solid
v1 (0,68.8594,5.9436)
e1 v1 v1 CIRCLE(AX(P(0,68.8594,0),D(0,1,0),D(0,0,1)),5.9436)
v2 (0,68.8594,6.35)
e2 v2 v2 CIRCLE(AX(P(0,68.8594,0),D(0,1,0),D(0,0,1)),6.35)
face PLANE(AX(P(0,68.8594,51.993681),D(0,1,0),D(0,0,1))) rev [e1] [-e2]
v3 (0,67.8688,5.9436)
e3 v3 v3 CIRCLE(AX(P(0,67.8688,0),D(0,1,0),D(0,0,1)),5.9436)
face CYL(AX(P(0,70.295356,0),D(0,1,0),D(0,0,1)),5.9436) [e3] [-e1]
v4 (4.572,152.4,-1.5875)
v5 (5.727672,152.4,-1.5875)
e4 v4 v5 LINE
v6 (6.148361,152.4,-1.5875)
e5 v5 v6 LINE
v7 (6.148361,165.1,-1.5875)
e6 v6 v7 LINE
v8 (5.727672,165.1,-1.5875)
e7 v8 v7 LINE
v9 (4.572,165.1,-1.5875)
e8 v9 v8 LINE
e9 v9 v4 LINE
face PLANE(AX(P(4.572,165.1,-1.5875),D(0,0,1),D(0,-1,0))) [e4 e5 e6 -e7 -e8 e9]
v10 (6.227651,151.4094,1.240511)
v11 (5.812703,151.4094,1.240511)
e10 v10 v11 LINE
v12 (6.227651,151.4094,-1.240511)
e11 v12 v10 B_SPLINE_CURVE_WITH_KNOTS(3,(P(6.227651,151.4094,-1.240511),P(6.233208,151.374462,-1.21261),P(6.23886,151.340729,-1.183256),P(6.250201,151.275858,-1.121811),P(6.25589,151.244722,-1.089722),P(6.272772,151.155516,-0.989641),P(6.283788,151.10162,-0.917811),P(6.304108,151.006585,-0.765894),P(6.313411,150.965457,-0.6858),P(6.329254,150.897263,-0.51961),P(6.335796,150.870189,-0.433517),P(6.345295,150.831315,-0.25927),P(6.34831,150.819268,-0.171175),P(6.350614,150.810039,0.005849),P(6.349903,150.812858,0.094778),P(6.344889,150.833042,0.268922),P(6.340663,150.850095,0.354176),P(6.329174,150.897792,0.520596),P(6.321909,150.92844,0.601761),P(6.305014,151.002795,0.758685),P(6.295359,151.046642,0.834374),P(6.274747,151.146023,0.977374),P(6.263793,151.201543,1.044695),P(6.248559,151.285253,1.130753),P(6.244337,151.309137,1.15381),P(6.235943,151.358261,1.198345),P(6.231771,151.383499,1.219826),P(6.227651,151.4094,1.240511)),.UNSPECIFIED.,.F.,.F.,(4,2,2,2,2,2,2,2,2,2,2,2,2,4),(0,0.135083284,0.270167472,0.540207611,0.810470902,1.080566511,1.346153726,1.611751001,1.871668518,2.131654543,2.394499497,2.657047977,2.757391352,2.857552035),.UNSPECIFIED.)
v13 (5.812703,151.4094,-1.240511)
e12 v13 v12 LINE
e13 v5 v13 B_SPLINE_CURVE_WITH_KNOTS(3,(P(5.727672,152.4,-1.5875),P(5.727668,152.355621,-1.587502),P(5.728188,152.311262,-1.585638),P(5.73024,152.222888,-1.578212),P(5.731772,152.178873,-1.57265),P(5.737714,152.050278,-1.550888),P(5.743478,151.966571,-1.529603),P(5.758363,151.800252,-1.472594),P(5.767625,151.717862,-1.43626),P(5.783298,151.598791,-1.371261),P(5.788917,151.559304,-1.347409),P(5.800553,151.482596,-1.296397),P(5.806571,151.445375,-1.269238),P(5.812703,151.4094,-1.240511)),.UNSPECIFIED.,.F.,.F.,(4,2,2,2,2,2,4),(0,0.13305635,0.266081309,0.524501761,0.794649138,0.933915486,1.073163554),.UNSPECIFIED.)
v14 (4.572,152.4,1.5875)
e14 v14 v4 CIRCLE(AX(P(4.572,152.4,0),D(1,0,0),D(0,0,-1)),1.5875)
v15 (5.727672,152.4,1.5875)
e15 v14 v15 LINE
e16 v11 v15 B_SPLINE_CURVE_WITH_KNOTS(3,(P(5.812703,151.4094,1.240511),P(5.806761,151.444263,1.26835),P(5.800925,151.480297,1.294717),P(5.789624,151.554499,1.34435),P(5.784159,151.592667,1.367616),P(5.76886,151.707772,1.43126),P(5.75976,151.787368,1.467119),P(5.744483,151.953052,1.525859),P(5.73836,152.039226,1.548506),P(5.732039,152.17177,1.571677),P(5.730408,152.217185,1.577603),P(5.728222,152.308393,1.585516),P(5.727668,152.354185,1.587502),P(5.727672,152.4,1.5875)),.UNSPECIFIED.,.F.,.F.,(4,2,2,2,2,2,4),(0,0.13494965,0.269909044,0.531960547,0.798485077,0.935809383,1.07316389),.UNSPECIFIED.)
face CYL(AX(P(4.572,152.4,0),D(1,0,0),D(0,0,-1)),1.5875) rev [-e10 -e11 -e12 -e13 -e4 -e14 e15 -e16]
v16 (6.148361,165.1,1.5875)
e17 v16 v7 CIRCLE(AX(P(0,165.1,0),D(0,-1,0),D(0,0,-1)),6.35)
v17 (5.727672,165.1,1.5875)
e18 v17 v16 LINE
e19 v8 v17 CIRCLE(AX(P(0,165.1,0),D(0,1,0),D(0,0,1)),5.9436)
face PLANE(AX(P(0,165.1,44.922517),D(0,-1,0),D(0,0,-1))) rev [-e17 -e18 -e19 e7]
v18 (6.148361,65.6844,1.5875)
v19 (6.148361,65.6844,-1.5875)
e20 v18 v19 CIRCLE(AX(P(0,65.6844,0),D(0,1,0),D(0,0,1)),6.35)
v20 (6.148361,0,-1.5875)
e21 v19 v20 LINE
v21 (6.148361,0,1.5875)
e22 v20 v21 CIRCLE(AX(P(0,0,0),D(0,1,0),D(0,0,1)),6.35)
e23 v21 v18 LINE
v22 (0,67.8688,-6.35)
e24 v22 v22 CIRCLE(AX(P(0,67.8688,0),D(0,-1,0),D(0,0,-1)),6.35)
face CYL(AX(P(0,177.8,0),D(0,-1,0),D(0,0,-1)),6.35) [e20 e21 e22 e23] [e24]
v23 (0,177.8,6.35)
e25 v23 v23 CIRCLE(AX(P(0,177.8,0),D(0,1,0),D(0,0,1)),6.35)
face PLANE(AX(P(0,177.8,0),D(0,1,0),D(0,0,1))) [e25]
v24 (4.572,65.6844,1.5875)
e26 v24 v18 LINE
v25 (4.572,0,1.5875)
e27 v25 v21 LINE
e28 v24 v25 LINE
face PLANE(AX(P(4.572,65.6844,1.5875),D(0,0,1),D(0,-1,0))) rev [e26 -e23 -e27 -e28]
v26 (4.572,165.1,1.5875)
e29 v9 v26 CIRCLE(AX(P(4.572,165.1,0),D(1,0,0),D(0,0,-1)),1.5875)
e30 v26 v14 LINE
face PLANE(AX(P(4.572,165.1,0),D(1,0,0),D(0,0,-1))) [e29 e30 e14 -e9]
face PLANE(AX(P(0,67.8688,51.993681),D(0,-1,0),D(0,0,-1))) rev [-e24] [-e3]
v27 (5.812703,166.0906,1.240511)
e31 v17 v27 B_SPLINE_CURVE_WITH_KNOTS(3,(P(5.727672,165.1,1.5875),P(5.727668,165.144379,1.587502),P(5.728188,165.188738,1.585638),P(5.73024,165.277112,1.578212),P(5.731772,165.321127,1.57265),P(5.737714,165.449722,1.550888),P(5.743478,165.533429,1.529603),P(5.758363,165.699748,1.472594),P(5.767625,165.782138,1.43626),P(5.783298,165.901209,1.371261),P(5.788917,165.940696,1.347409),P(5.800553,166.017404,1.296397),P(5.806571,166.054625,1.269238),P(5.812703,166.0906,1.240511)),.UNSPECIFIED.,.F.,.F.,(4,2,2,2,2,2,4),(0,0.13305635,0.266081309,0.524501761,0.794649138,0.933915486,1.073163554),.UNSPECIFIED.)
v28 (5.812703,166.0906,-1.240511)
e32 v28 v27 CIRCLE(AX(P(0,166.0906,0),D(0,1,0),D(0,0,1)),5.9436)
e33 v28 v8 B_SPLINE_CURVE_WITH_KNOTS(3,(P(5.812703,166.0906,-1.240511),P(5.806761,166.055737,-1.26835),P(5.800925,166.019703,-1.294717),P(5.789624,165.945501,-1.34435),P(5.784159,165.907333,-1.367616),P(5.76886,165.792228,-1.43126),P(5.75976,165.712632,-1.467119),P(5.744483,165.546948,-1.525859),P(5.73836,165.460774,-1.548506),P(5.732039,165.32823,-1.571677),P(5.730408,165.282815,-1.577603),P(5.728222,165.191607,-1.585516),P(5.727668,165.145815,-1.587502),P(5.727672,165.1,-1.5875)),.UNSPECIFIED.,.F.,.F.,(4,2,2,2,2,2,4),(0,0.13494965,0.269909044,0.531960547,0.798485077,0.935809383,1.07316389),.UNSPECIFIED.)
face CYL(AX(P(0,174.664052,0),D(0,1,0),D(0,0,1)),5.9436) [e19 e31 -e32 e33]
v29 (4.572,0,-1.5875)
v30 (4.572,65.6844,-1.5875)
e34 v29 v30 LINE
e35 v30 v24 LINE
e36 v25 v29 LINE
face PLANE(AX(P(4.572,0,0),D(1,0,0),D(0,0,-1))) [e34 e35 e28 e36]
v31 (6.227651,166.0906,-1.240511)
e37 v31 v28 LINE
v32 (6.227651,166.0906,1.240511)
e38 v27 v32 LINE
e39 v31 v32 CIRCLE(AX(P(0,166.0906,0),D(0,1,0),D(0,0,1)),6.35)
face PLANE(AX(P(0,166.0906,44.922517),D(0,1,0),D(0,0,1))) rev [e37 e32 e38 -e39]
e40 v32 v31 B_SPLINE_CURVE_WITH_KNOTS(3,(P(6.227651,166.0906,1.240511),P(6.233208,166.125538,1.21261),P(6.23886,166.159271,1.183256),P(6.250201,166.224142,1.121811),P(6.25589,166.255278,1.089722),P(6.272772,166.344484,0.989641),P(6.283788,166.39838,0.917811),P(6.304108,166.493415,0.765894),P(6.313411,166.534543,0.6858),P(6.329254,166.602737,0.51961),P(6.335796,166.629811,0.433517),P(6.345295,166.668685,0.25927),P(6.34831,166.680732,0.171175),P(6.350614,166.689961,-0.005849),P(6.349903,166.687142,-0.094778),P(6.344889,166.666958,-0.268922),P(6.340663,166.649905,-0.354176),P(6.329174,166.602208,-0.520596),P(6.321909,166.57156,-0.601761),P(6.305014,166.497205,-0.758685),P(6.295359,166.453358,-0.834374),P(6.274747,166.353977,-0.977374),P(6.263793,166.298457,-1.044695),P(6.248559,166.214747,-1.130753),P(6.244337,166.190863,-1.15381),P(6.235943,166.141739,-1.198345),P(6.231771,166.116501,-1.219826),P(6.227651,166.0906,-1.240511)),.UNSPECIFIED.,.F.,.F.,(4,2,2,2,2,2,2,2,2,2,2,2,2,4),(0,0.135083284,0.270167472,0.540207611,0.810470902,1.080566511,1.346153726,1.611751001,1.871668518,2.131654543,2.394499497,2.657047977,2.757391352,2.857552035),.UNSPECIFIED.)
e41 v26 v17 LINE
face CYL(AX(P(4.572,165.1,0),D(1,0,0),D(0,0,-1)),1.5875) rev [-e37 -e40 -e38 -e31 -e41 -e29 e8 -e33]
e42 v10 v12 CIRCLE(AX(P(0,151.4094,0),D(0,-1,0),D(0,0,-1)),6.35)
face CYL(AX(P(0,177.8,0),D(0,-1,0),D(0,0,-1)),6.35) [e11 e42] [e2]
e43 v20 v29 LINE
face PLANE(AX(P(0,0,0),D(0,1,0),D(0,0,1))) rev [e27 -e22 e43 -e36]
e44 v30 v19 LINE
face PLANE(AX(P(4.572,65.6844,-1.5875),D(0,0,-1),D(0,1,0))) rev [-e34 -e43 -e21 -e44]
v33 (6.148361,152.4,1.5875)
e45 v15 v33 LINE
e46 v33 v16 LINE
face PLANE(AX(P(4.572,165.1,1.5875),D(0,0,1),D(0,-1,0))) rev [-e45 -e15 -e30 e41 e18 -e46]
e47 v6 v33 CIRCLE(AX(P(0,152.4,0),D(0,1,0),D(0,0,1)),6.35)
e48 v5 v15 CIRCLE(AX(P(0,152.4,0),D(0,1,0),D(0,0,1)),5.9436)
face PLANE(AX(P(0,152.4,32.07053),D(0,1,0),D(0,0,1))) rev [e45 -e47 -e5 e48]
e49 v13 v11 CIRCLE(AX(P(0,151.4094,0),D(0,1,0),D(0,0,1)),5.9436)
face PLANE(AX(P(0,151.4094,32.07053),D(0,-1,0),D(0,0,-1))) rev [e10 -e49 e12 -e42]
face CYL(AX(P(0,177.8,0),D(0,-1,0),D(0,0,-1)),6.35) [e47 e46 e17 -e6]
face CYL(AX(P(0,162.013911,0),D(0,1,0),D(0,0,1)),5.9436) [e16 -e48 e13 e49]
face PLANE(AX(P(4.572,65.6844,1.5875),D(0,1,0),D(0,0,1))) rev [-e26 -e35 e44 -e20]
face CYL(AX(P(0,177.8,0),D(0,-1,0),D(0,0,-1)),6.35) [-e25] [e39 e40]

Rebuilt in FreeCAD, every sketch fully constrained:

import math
import FreeCAD as App
import Part
import Sketcher
from FreeCAD import Vector
Q = App.Units.Quantity

doc = App.newDocument("Part")
body = doc.addObject("PartDesign::Body", "Body")

# Sketch on XZ plane
sketch1 = doc.addObject("Sketcher::SketchObject", "Sketch")
body.addObject(sketch1)
sketch1.AttachmentSupport = (doc.XZ_Plane, [""])
sketch1.MapMode = "FlatFace"
sketch1.addGeometry(Part.Circle(Vector(0, 0, 0), Vector(0, 0, 1), 6), False)
sketch1.addConstraint([
    Sketcher.Constraint("Coincident", 0, 3, -1, 1),
    Sketcher.Constraint("Diameter", 0, Q("0.5 in")),
])
pad1 = doc.addObject("PartDesign::Pad", "Pad")
body.addObject(pad1)
pad1.Profile = sketch1
pad1.Length = Q("7 in")
pad1.Reversed = True

# Sketch on YZ plane
sketch2 = doc.addObject("Sketcher::SketchObject", "Sketch001")
body.addObject(sketch2)
sketch2.AttachmentSupport = (doc.YZ_Plane, [""])
sketch2.MapMode = "FlatFace"
sketch2.addGeometry([
    Part.LineSegment(Vector(166.1, 44.9, 0), Vector(165.1, 44.9, 0)),
    Part.LineSegment(Vector(165.1, 44.9, 0), Vector(165.1, 5.9, 0)),
    Part.LineSegment(Vector(165.1, 5.9, 0), Vector(166.1, 5.9, 0)),
    Part.LineSegment(Vector(166.1, 5.9, 0), Vector(166.1, 44.9, 0)),
], False)
sketch2.addConstraint([
    Sketcher.Constraint("Coincident", 0, 2, 1, 1),
    Sketcher.Constraint("Coincident", 1, 2, 2, 1),
    Sketcher.Constraint("Coincident", 2, 2, 3, 1),
    Sketcher.Constraint("Coincident", 3, 2, 0, 1),
    Sketcher.Constraint("Horizontal", 0),
    Sketcher.Constraint("Vertical", 1),
    Sketcher.Constraint("Horizontal", 2),
    Sketcher.Constraint("Vertical", 3),
    Sketcher.Constraint("DistanceX", -1, 1, 0, 2, Q("6.5 in")),
    Sketcher.Constraint("DistanceX", 0, 2, 0, 1, Q("0.039 in")),
    Sketcher.Constraint("DistanceY", -1, 1, 1, 2, Q("0.234 in")),
    Sketcher.Constraint("DistanceY", 1, 2, 1, 1, Q("38.978917 mm")),
])
groove = doc.addObject("PartDesign::Groove", "Groove")
body.addObject(groove)
groove.Profile = sketch2
groove.ReferenceAxis = (sketch2, ["H_Axis"])
groove.Angle = 360

# Sketch on YZ plane
sketch3 = doc.addObject("Sketcher::SketchObject", "Sketch002")
body.addObject(sketch3)
sketch3.AttachmentSupport = (doc.YZ_Plane, [""])
sketch3.MapMode = "FlatFace"
sketch3.addGeometry([
    Part.LineSegment(Vector(152.4, 32.1, 0), Vector(151.4, 32.1, 0)),
    Part.LineSegment(Vector(151.4, 32.1, 0), Vector(151.4, 5.9, 0)),
    Part.LineSegment(Vector(151.4, 5.9, 0), Vector(152.4, 5.9, 0)),
    Part.LineSegment(Vector(152.4, 5.9, 0), Vector(152.4, 32.1, 0)),
], False)
sketch3.addConstraint([
    Sketcher.Constraint("Coincident", 0, 2, 1, 1),
    Sketcher.Constraint("Coincident", 1, 2, 2, 1),
    Sketcher.Constraint("Coincident", 2, 2, 3, 1),
    Sketcher.Constraint("Coincident", 3, 2, 0, 1),
    Sketcher.Constraint("Horizontal", 0),
    Sketcher.Constraint("Vertical", 1),
    Sketcher.Constraint("Horizontal", 2),
    Sketcher.Constraint("Vertical", 3),
    Sketcher.Constraint("DistanceX", -1, 1, 2, 2, Q("6 in")),
    Sketcher.Constraint("DistanceX", 0, 2, 0, 1, Q("0.039 in")),
    Sketcher.Constraint("DistanceY", -1, 1, 1, 2, Q("0.234 in")),
    Sketcher.Constraint("DistanceY", 1, 2, 1, 1, Q("26.12693 mm")),
])
groove2 = doc.addObject("PartDesign::Groove", "Groove001")
body.addObject(groove2)
groove2.Profile = sketch3
groove2.ReferenceAxis = (sketch3, ["H_Axis"])
groove2.Angle = 360

# Sketch on YZ plane
sketch4 = doc.addObject("Sketcher::SketchObject", "Sketch003")
body.addObject(sketch4)
sketch4.AttachmentSupport = (doc.YZ_Plane, [""])
sketch4.MapMode = "FlatFace"
sketch4.addGeometry([
    Part.LineSegment(Vector(68.9, 52, 0), Vector(67.9, 52, 0)),
    Part.LineSegment(Vector(67.9, 52, 0), Vector(67.9, 5.9, 0)),
    Part.LineSegment(Vector(67.9, 5.9, 0), Vector(68.9, 5.9, 0)),
    Part.LineSegment(Vector(68.9, 5.9, 0), Vector(68.9, 52, 0)),
], False)
sketch4.addConstraint([
    Sketcher.Constraint("Coincident", 0, 2, 1, 1),
    Sketcher.Constraint("Coincident", 1, 2, 2, 1),
    Sketcher.Constraint("Coincident", 2, 2, 3, 1),
    Sketcher.Constraint("Coincident", 3, 2, 0, 1),
    Sketcher.Constraint("Horizontal", 0),
    Sketcher.Constraint("Vertical", 1),
    Sketcher.Constraint("Horizontal", 2),
    Sketcher.Constraint("Vertical", 3),
    Sketcher.Constraint("DistanceX", 0, 2, 0, 1, Q("0.039 in")),
    Sketcher.Constraint("DistanceX", -1, 1, 0, 2, Q("2.672 in")),
    Sketcher.Constraint("DistanceY", -1, 1, 1, 2, Q("0.234 in")),
    Sketcher.Constraint("DistanceY", 1, 2, 1, 1, Q("46.050081 mm")),
])
groove3 = doc.addObject("PartDesign::Groove", "Groove002")
body.addObject(groove3)
groove3.Profile = sketch4
groove3.ReferenceAxis = (sketch4, ["H_Axis"])
groove3.Angle = 360

# Sketch on YZ plane
sketch5 = doc.addObject("Sketcher::SketchObject", "Sketch004")
body.addObject(sketch5)
sketch5.AttachmentSupport = (doc.YZ_Plane, [""])
sketch5.MapMode = "FlatFace"
sketch5.AttachmentOffset = App.Placement(Vector(0, 0, 0.25 * 25.4), App.Rotation())
sketch5.addGeometry([
    Part.LineSegment(Vector(152.4, -1.6, 0), Vector(165.1, -1.6, 0)),
    Part.ArcOfCircle(Part.Circle(Vector(165.1, 0, 0), Vector(0, 0, 1), 1.6), math.radians(-90), math.radians(90)),
    Part.LineSegment(Vector(165.1, 1.6, 0), Vector(152.4, 1.6, 0)),
    Part.ArcOfCircle(Part.Circle(Vector(152.4, 0, 0), Vector(0, 0, 1), 1.6), math.radians(90), math.radians(270)),
], False)
sketch5.addConstraint([
    Sketcher.Constraint("Tangent", 0, 2, 1, 1),
    Sketcher.Constraint("Tangent", 1, 2, 2, 1),
    Sketcher.Constraint("Tangent", 2, 2, 3, 1),
    Sketcher.Constraint("Tangent", 3, 2, 0, 1),
    Sketcher.Constraint("Horizontal", 0),
    Sketcher.Constraint("Horizontal", 2),
    Sketcher.Constraint("PointOnObject", 1, 3, -1),
    Sketcher.Constraint("DistanceX", 0, 1, 0, 2, Q("0.5 in")),
    Sketcher.Constraint("DistanceX", -1, 1, 3, 3, Q("6 in")),
    Sketcher.Constraint("Radius", 1, Q("0.0625 in")),
])
pocket1 = doc.addObject("PartDesign::Pocket", "Pocket")
body.addObject(pocket1)
pocket1.Profile = sketch5
pocket1.Length = Q("0.07 in")

# Sketch on YZ plane
sketch6 = doc.addObject("Sketcher::SketchObject", "Sketch005")
body.addObject(sketch6)
sketch6.AttachmentSupport = (doc.YZ_Plane, [""])
sketch6.MapMode = "FlatFace"
sketch6.AttachmentOffset = App.Placement(Vector(0, 0, 0.25 * 25.4), App.Rotation())
sketch6.addGeometry([
    Part.LineSegment(Vector(65.7, 1.6, 0), Vector(-15.1, 1.6, 0)),
    Part.LineSegment(Vector(-15.1, 1.6, 0), Vector(-15.1, -1.6, 0)),
    Part.LineSegment(Vector(-15.1, -1.6, 0), Vector(65.7, -1.6, 0)),
    Part.LineSegment(Vector(65.7, -1.6, 0), Vector(65.7, 1.6, 0)),
], False)
sketch6.addConstraint([
    Sketcher.Constraint("Coincident", 0, 2, 1, 1),
    Sketcher.Constraint("Coincident", 1, 2, 2, 1),
    Sketcher.Constraint("Coincident", 2, 2, 3, 1),
    Sketcher.Constraint("Coincident", 3, 2, 0, 1),
    Sketcher.Constraint("Horizontal", 0),
    Sketcher.Constraint("Vertical", 1),
    Sketcher.Constraint("Horizontal", 2),
    Sketcher.Constraint("Vertical", 3),
    Sketcher.Constraint("DistanceY", 1, 2, 1, 1, Q("0.125 in")),
    Sketcher.Constraint("DistanceY", -1, 1, 0, 2, Q("0.0625 in")),
    Sketcher.Constraint("DistanceX", -1, 1, 2, 2, Q("2.586 in")),
    Sketcher.Constraint("DistanceX", 0, 2, 0, 1, Q("80.766552 mm")),
])
pocket2 = doc.addObject("PartDesign::Pocket", "Pocket001")
body.addObject(pocket2)
pocket2.Profile = sketch6
pocket2.Length = Q("0.07 in")

doc.recompute()
